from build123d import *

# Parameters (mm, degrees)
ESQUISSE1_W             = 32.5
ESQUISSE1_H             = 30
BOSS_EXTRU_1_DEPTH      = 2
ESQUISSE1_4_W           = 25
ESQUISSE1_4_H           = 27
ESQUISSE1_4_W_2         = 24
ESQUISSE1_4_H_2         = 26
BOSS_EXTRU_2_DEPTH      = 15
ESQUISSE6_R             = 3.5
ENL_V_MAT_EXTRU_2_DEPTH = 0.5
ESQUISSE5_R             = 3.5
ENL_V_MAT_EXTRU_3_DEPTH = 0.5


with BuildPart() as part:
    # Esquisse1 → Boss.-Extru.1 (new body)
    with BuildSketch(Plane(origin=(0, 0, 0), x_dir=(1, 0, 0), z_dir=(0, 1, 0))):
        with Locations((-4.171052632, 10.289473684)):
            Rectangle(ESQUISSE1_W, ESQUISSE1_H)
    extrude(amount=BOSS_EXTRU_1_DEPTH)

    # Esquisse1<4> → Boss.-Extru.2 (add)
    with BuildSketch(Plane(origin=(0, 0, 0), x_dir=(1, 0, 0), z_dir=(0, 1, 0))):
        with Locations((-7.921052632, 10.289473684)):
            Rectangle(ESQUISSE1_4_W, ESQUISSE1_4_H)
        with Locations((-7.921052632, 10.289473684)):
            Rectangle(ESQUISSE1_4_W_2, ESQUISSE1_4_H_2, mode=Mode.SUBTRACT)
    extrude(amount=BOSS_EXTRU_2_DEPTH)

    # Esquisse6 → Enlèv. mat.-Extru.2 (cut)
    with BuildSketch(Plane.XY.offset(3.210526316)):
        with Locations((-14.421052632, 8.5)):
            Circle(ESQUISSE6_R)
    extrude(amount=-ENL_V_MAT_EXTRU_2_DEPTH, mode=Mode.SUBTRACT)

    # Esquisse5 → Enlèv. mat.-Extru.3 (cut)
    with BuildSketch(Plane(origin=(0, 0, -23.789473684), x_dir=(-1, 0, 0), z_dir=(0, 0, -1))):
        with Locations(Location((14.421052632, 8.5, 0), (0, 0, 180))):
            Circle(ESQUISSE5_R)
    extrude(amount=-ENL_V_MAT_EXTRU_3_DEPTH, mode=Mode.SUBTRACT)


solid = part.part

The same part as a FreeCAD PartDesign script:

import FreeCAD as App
import Part
import Sketcher
from FreeCAD import Vector


def add_polygon(sketch, points):
    """Adds a closed chain of lines whose ends are joined by coincident constraints."""
    first, n = sketch.GeometryCount, len(points)
    for a, b in zip(points, points[1:] + points[:1]):
        sketch.addGeometry(Part.LineSegment(App.Vector(*a, 0), App.Vector(*b, 0)), False)
    for i in range(n):
        sketch.addConstraint(Sketcher.Constraint("Coincident", first + i, 2, first + (i + 1) % n, 1))

doc = App.newDocument("Part")
body = doc.addObject("PartDesign::Body", "Body")

sketch1 = body.newObject("Sketcher::SketchObject", "Sketch")
sketch1.AttachmentSupport = (doc.getObject("XZ_Plane"), [""])
sketch1.MapMode = "FlatFace"
add_polygon(sketch1, [(-20, -25), (-20, 5), (12, 5), (12, -25)])
sketch1.addConstraint(Sketcher.Constraint("Vertical", 0))
sketch1.addConstraint(Sketcher.Constraint("Horizontal", 1))
sketch1.addConstraint(Sketcher.Constraint("Vertical", 2))
sketch1.addConstraint(Sketcher.Constraint("Horizontal", 3))
sketch1.addConstraint(Sketcher.Constraint("DistanceY", 0, 1, 0, 2, 30.0))
sketch1.addConstraint(Sketcher.Constraint("DistanceX", 1, 1, 1, 2, 32.5))
sketch1.addConstraint(Sketcher.Constraint("DistanceX", 0, 2, -1, 1, 20.421053))
sketch1.addConstraint(Sketcher.Constraint("DistanceY", -1, 1, 0, 2, 4.710526))
pad1 = body.newObject("PartDesign::Pad", "Pad")
pad1.Profile = sketch1
pad1.Length = 2
pad1.Reversed = True

sketch2 = body.newObject("Sketcher::SketchObject", "Sketch001")
sketch2.AttachmentSupport = (doc.getObject("XZ_Plane"), [""])
sketch2.MapMode = "FlatFace"
add_polygon(sketch2, [(-20, -24), (-20, 3), (5, 3), (5, -24)])
add_polygon(sketch2, [(4, 3), (-20, 3), (-20, -23), (4, -23)])
sketch2.addConstraint(Sketcher.Constraint("Vertical", 0))
sketch2.addConstraint(Sketcher.Constraint("Horizontal", 1))
sketch2.addConstraint(Sketcher.Constraint("Vertical", 2))
sketch2.addConstraint(Sketcher.Constraint("Horizontal", 3))
sketch2.addConstraint(Sketcher.Constraint("Horizontal", 4))
sketch2.addConstraint(Sketcher.Constraint("Vertical", 5))
sketch2.addConstraint(Sketcher.Constraint("Horizontal", 6))
sketch2.addConstraint(Sketcher.Constraint("Vertical", 7))
sketch2.addConstraint(Sketcher.Constraint("DistanceX", 1, 1, 1, 2, 25.0))
sketch2.addConstraint(Sketcher.Constraint("DistanceX", 4, 2, 4, 1, 24.0))
sketch2.addConstraint(Sketcher.Constraint("DistanceY", 0, 1, 0, 2, 27.0))
sketch2.addConstraint(Sketcher.Constraint("DistanceY", 5, 2, 5, 1, 26.0))
sketch2.addConstraint(Sketcher.Constraint("DistanceX", 0, 2, 4, 2, 0.5))
sketch2.addConstraint(Sketcher.Constraint("DistanceY", 4, 2, 0, 2, 0.5))
sketch2.addConstraint(Sketcher.Constraint("DistanceX", 0, 2, -1, 1, 20.421053))
sketch2.addConstraint(Sketcher.Constraint("DistanceY", -1, 1, 0, 2, 3.210526))
pad2 = body.newObject("PartDesign::Pad", "Pad001")
pad2.Profile = sketch2
pad2.Length = 15
pad2.Reversed = True

sketch3 = body.newObject("Sketcher::SketchObject", "Sketch002")
sketch3.AttachmentSupport = (doc.getObject("XY_Plane"), [""])
sketch3.MapMode = "FlatFace"
sketch3.AttachmentOffset = App.Placement(Vector(0, 0, 3.210526), App.Rotation())
sketch3.addGeometry(Part.Circle(Vector(-14.4, 8.5, 0), Vector(0, 0, 1), 3.5), False)
sketch3.addConstraint(Sketcher.Constraint("Diameter", 0, 7.0))
sketch3.addConstraint(Sketcher.Constraint("DistanceY", -1, 1, 0, 3, 8.5))
sketch3.addConstraint(Sketcher.Constraint("DistanceX", 0, 3, -1, 1, 14.421053))
pocket1 = body.newObject("PartDesign::Pocket", "Pocket")
pocket1.Profile = sketch3
pocket1.Length = 0.5

sketch4 = body.newObject("Sketcher::SketchObject", "Sketch003")
sketch4.AttachmentSupport = (doc.getObject("XY_Plane"), [""])
sketch4.MapMode = "FlatFace"
sketch4.AttachmentOffset = App.Placement(Vector(0, 0, -23.789474), App.Rotation())
sketch4.addGeometry(Part.Circle(Vector(-14.4, 8.5, 0), Vector(0, 0, 1), 3.5), False)
sketch4.addConstraint(Sketcher.Constraint("Diameter", 0, 7.0))
sketch4.addConstraint(Sketcher.Constraint("DistanceY", -1, 1, 0, 3, 8.5))
sketch4.addConstraint(Sketcher.Constraint("DistanceX", 0, 3, -1, 1, 14.421053))
pocket2 = body.newObject("PartDesign::Pocket", "Pocket001")
pocket2.Profile = sketch4
pocket2.Length = 0.5
pocket2.Reversed = True

doc.recompute()
